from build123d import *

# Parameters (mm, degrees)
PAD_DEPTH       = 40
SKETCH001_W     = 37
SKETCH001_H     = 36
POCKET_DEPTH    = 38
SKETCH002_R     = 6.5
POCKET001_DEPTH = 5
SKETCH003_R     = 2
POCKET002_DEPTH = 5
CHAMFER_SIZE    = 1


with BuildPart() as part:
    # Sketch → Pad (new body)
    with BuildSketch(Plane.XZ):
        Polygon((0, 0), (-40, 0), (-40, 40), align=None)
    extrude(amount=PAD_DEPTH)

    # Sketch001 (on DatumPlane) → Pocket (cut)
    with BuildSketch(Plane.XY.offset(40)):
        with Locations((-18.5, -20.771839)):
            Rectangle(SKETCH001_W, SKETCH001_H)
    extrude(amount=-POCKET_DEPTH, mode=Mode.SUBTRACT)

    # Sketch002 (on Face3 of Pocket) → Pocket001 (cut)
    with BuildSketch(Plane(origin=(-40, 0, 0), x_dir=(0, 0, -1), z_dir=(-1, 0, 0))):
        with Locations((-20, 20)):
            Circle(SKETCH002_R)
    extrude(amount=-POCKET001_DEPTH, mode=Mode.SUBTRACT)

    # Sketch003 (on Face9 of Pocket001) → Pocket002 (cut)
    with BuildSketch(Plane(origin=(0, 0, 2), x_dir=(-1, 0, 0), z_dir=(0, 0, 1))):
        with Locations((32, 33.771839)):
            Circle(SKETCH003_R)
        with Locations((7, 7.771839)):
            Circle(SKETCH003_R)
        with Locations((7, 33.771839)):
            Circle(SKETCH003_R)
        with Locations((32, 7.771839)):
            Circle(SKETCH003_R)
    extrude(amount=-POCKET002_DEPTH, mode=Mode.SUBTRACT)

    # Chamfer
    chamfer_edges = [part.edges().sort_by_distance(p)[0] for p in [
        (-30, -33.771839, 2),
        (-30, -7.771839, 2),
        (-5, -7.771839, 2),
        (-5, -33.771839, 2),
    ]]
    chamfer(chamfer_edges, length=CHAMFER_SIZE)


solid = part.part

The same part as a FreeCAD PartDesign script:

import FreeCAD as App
import Part
import Sketcher
from FreeCAD import Vector
Q = App.Units.Quantity


def edges_at(feature, points):
    """Names of the edges that pass closest to the given points."""
    edges = feature.Shape.Edges
    near = lambda p: min(range(len(edges)), key=lambda i: edges[i].distToShape(Part.Vertex(*p))[0])
    return sorted({f"Edge{near(p) + 1}" for p in points})

doc = App.newDocument("Part")
body = doc.addObject("PartDesign::Body", "Body")

# Sketch on XZ plane
sketch1 = body.newObject("Sketcher::SketchObject", "Sketch")
sketch1.AttachmentSupport = (doc.getObject("XZ_Plane"), [""])
sketch1.MapMode = "FlatFace"
sketch1.addGeometry([
    Part.LineSegment(Vector(-40, 0, 0), Vector(0, 0, 0)),
    Part.LineSegment(Vector(0, 0, 0), Vector(-40, 40, 0)),
    Part.LineSegment(Vector(-40, 40, 0), Vector(-40, 0, 0)),
], False)
sketch1.addConstraint([
    Sketcher.Constraint("Coincident", 0, 2, 1, 1),
    Sketcher.Constraint("Coincident", 1, 2, 2, 1),
    Sketcher.Constraint("Coincident", 2, 2, 0, 1),
    Sketcher.Constraint("Horizontal", 0),
    Sketcher.Constraint("Vertical", 2),
    Sketcher.Constraint("Coincident", 0, 2, -1, 1),
    Sketcher.Constraint("Equal", 0, 2),
    Sketcher.Constraint("DistanceX", 0, 1, 0, 2, Q("40 mm")),
])
pad1 = body.newObject("PartDesign::Pad", "Pad")
pad1.Profile = sketch1
pad1.Length = 40

# Sketch on XY plane
sketch2 = body.newObject("Sketcher::SketchObject", "Sketch001")
sketch2.AttachmentSupport = (doc.getObject("XY_Plane"), [""])
sketch2.MapMode = "FlatFace"
sketch2.AttachmentOffset = App.Placement(Vector(0, 0, 40), App.Rotation())
sketch2.addGeometry([
    Part.LineSegment(Vector(-37, -2.771839, 0), Vector(-37, -38.771839, 0)),
    Part.LineSegment(Vector(-37, -38.771839, 0), Vector(0, -38.771839, 0)),
    Part.LineSegment(Vector(0, -38.771839, 0), Vector(0, -2.771839, 0)),
    Part.LineSegment(Vector(0, -2.771839, 0), Vector(-37, -2.771839, 0)),
], False)
sketch2.addConstraint([
    Sketcher.Constraint("Coincident", 0, 2, 1, 1),
    Sketcher.Constraint("Coincident", 1, 2, 2, 1),
    Sketcher.Constraint("Coincident", 2, 2, 3, 1),
    Sketcher.Constraint("Coincident", 3, 2, 0, 1),
    Sketcher.Constraint("Vertical", 0),
    Sketcher.Constraint("Horizontal", 1),
    Sketcher.Constraint("Vertical", 2),
    Sketcher.Constraint("Horizontal", 3),
    Sketcher.Constraint("PointOnObject", 1, 2, -2),
    Sketcher.Constraint("DistanceX", 1, 1, 1, 2, Q("37 mm")),
    Sketcher.Constraint("DistanceY", 0, 2, 0, 1, Q("36 mm")),
    Sketcher.Constraint("DistanceY", 0, 2, -1, 1, Q("38.771839 mm")),
])
pocket1 = body.newObject("PartDesign::Pocket", "Pocket")
pocket1.Profile = sketch2
pocket1.Length = 38

# Sketch on YZ plane
sketch3 = body.newObject("Sketcher::SketchObject", "Sketch002")
sketch3.AttachmentSupport = (doc.getObject("YZ_Plane"), [""])
sketch3.MapMode = "FlatFace"
sketch3.AttachmentOffset = App.Placement(Vector(0, 0, -40), App.Rotation())
sketch3.addGeometry(Part.Circle(Vector(-20, 20, 0), Vector(0, 0, 1), 6.5), False)
sketch3.addConstraint([
    Sketcher.Constraint("Diameter", 0, Q("13 mm")),
    Sketcher.Constraint("DistanceX", 0, 3, -1, 1, Q("20 mm")),
    Sketcher.Constraint("DistanceY", -1, 1, 0, 3, Q("20 mm")),
])
pocket2 = body.newObject("PartDesign::Pocket", "Pocket001")
pocket2.Profile = sketch3
pocket2.Length = 5
pocket2.Reversed = True

# Sketch on XY plane
sketch4 = body.newObject("Sketcher::SketchObject", "Sketch003")
sketch4.AttachmentSupport = (doc.getObject("XY_Plane"), [""])
sketch4.MapMode = "FlatFace"
sketch4.AttachmentOffset = App.Placement(Vector(0, 0, 2), App.Rotation())
sketch4.addGeometry([
    Part.Circle(Vector(-32, -33.771839, 0), Vector(0, 0, 1), 2),
    Part.Circle(Vector(-7, -7.771839, 0), Vector(0, 0, 1), 2),
    Part.Circle(Vector(-7, -33.771839, 0), Vector(0, 0, 1), 2),
    Part.Circle(Vector(-32, -7.771839, 0), Vector(0, 0, 1), 2),
], False)
sketch4.addConstraint([
    Sketcher.Constraint("Equal", 0, 1),
    Sketcher.Constraint("Equal", 1, 2),
    Sketcher.Constraint("Equal", 2, 3),
    Sketcher.Constraint("Horizontal", 0, 3, 2, 3),
    Sketcher.Constraint("Horizontal", 1, 3, 3, 3),
    Sketcher.Constraint("Vertical", 1, 3, 2, 3),
    Sketcher.Constraint("Vertical", 0, 3, 3, 3),
    Sketcher.Constraint("Diameter", 0, Q("4 mm")),
    Sketcher.Constraint("DistanceX", 0, 3, -1, 1, Q("32 mm")),
    Sketcher.Constraint("DistanceX", 1, 3, -1, 1, Q("7 mm")),
    Sketcher.Constraint("DistanceY", 0, 3, 1, 3, Q("26 mm")),
    Sketcher.Constraint("DistanceY", 0, 3, -1, 1, Q("33.771839 mm")),
])
pocket3 = body.newObject("PartDesign::Pocket", "Pocket002")
pocket3.Profile = sketch4
pocket3.Length = 5
doc.recompute()

chamfer = body.newObject("PartDesign::Chamfer", "Chamfer")
chamfer.Base = (pocket3, edges_at(pocket3, [
    (-30, -33.772, 2),
    (-30, -7.772, 2),
    (-5, -7.772, 2),
    (-5, -33.772, 2),
]))
chamfer.Size = 1

doc.recompute()
